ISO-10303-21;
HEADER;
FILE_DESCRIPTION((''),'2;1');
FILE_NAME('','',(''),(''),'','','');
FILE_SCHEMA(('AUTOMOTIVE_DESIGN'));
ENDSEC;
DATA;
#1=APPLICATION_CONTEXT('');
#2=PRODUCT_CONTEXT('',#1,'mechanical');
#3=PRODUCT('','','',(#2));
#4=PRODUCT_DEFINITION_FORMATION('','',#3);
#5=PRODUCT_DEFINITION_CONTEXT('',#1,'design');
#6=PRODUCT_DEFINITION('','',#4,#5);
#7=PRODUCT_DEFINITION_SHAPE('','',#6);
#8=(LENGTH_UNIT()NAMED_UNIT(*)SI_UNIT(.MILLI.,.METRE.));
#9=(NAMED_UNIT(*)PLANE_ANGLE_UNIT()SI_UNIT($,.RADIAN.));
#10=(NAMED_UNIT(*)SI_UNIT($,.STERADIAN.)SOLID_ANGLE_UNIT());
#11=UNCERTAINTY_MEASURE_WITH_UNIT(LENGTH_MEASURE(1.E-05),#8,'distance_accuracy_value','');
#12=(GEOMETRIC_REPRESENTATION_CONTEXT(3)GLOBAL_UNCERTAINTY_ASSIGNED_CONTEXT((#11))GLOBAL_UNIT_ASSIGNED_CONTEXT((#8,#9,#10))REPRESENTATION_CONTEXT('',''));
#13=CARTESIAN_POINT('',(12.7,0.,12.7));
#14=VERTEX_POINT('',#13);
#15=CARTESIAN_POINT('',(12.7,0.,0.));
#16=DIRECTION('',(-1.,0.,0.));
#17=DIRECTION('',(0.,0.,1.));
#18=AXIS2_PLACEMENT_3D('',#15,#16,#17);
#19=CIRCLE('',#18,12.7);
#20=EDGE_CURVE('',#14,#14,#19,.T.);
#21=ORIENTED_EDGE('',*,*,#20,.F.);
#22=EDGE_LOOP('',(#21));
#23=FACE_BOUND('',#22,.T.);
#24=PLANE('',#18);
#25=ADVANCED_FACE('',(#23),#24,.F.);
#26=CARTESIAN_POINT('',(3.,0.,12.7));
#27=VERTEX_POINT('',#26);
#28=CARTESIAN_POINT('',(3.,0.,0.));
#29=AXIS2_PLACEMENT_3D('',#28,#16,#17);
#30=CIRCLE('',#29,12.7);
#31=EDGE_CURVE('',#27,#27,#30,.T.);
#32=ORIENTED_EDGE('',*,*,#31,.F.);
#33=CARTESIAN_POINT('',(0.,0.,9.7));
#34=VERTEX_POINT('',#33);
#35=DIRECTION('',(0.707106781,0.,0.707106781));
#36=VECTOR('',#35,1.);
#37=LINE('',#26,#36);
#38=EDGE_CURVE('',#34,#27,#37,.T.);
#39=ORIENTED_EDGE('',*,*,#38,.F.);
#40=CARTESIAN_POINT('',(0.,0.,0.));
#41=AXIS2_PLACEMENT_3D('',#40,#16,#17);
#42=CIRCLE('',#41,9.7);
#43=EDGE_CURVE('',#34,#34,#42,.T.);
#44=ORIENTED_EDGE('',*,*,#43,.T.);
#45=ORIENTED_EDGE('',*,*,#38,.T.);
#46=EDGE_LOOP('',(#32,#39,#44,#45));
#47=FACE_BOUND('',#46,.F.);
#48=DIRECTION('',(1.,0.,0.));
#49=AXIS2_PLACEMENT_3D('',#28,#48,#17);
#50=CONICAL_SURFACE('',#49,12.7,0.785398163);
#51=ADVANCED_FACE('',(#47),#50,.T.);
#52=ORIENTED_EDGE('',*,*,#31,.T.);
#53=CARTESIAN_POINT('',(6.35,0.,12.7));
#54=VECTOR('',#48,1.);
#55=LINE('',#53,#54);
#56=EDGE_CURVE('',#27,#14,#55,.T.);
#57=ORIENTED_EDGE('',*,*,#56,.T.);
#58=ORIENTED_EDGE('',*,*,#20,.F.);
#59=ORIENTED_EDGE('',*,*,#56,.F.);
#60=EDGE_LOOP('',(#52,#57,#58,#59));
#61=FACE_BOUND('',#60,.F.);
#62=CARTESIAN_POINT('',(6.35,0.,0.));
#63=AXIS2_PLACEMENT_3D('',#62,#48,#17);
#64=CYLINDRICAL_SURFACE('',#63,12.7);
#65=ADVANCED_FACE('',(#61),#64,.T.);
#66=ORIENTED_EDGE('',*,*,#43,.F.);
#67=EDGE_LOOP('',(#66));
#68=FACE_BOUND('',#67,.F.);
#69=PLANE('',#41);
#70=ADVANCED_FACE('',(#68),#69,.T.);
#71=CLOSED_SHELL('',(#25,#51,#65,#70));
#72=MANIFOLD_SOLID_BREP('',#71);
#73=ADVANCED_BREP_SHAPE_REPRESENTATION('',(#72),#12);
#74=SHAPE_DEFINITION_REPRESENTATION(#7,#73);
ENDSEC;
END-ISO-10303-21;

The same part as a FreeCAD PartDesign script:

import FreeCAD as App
import Part
import Sketcher

V = App.Vector
Q = App.Units.Quantity


def edges_at(feature, points):
    """Names of the edges that pass closest to the given points."""
    edges = feature.Shape.Edges
    near = lambda p: min(range(len(edges)), key=lambda i: edges[i].distToShape(Part.Vertex(*p))[0])
    return sorted({f"Edge{near(p) + 1}" for p in points})


def add_polygon(sketch, points):
    """Adds a closed chain of lines whose ends are joined by coincident constraints."""
    first, n = sketch.GeometryCount, len(points)
    for a, b in zip(points, points[1:] + points[:1]):
        sketch.addGeometry(Part.LineSegment(App.Vector(*a, 0), App.Vector(*b, 0)), False)
    for i in range(n):
        sketch.addConstraint(Sketcher.Constraint("Coincident", first + i, 2, first + (i + 1) % n, 1))

doc = App.newDocument("Part")
params = doc.addObject("Spreadsheet::Sheet", "Params")
for row, (alias, value) in enumerate([
    ("sketch1_width", "12.7 mm"),
    ("revolution_angle", "360 deg"),
    ("chamfer_size", "3 mm"),
], start=1):
    params.set(f"A{row}", alias)
    params.set(f"B{row}", "=" + value)
    params.setAlias(f"B{row}", alias)

body = doc.addObject("PartDesign::Body", "Body")

# Sketch on XZ plane
sketch1 = body.newObject("Sketcher::SketchObject", "Sketch")
sketch1.AttachmentSupport = (doc.getObject("XZ_Plane"), [""])
sketch1.MapMode = "FlatFace"
add_polygon(sketch1, [(0, 13), (0, 0), (13, 0), (13, 13)])  # lines 0-3
sketch1.addConstraint([
    Sketcher.Constraint("Vertical", 0),
    Sketcher.Constraint("Horizontal", 1),
    Sketcher.Constraint("Vertical", 2),
    Sketcher.Constraint("Horizontal", 3),
    Sketcher.Constraint("Coincident", 0, 2, -1, 1),
    Sketcher.Constraint("Equal", 3, 0),
    Sketcher.Constraint("DistanceX", 1, 1, 1, 2, Q("12.7 mm")),
])
sketch1.setExpression("Constraints[10]", "Params.sketch1_width")
revolution = body.newObject("PartDesign::Revolution", "Revolution")
revolution.Profile = sketch1
revolution.ReferenceAxis = (sketch1, ["H_Axis"])
revolution.setExpression("Angle", "Params.revolution_angle")
doc.recompute()

chamfer = body.newObject("PartDesign::Chamfer", "Chamfer")
chamfer.Base = (revolution, edges_at(revolution, [(0, 0, -12.7)]))
chamfer.setExpression("Size", "Params.chamfer_size")

doc.recompute()
